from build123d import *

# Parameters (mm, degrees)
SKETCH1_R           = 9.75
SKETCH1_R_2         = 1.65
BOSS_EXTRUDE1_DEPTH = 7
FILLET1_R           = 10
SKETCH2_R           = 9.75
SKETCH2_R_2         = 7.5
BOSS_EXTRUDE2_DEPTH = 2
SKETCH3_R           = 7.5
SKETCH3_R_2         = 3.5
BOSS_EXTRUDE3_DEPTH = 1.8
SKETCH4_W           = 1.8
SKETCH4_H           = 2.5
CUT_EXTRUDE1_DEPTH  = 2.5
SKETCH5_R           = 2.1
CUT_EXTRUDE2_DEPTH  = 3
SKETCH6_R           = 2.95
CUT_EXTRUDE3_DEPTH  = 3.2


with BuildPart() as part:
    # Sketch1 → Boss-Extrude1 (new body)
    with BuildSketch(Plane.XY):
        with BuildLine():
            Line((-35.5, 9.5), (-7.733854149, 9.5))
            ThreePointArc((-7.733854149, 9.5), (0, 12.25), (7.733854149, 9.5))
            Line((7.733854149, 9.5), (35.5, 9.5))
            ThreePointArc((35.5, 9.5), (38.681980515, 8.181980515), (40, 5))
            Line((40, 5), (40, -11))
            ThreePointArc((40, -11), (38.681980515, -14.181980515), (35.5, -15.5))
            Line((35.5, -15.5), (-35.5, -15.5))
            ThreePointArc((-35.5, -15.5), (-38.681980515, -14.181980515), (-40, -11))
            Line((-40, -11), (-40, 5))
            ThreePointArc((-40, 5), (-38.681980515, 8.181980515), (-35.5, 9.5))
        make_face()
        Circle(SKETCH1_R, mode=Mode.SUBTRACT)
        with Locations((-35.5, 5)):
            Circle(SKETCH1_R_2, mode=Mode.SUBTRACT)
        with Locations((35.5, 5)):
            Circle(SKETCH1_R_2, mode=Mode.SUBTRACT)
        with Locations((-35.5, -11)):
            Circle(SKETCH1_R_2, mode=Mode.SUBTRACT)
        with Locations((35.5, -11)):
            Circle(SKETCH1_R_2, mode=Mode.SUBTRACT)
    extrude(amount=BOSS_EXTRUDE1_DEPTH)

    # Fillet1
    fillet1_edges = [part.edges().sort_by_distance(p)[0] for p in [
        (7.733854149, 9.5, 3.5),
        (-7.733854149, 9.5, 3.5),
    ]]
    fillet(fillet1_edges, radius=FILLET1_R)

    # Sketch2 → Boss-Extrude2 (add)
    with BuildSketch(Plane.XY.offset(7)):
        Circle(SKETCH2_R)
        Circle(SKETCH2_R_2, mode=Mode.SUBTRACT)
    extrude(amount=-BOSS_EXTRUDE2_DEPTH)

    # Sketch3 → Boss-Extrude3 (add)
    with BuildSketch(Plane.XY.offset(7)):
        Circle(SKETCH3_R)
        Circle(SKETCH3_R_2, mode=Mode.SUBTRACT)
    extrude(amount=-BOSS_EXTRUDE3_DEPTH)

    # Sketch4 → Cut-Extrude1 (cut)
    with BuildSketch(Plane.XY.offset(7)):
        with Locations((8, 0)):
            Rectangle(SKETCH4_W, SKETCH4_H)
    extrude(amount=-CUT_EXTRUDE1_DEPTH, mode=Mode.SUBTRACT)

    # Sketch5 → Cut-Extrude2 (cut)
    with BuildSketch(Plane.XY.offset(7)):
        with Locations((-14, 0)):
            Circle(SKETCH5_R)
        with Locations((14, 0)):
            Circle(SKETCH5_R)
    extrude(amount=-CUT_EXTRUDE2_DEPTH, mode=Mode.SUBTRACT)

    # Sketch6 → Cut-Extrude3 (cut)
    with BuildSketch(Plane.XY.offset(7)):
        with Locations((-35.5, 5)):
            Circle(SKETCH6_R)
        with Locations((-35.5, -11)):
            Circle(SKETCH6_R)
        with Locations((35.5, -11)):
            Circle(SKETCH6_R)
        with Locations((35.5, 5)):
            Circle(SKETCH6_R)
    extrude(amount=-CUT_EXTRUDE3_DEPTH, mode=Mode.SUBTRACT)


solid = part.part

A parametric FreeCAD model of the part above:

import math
import FreeCAD as App
import Part
import Sketcher
from FreeCAD import Vector


def edges_at(feature, points):
    """Names of the edges that pass closest to the given points."""
    edges = feature.Shape.Edges
    near = lambda p: min(range(len(edges)), key=lambda i: edges[i].distToShape(Part.Vertex(*p))[0])
    return sorted({f"Edge{near(p) + 1}" for p in points})

doc = App.newDocument("Part")
body = doc.addObject("PartDesign::Body", "Body")

# Sketch on XY plane
sketch1 = body.newObject("Sketcher::SketchObject", "Sketch")
sketch1.AttachmentSupport = (doc.getObject("XY_Plane"), [""])
sketch1.MapMode = "FlatFace"
sketch1.addGeometry(Part.LineSegment(Vector(-7.733854, 9.5, 0), Vector(-35.5, 9.5, 0)), False)
sketch1.addGeometry(Part.ArcOfCircle(Part.Circle(Vector(-35.5, 5, 0), Vector(0, 0, 1), 4.5), math.radians(90), math.radians(180)), False)
sketch1.addGeometry(Part.LineSegment(Vector(-40, 5, 0), Vector(-40, -11, 0)), False)
sketch1.addGeometry(Part.ArcOfCircle(Part.Circle(Vector(-35.5, -11, 0), Vector(0, 0, 1), 4.5), math.radians(-180), math.radians(-90)), False)
sketch1.addGeometry(Part.LineSegment(Vector(-35.5, -15.5, 0), Vector(35.5, -15.5, 0)), False)
sketch1.addGeometry(Part.ArcOfCircle(Part.Circle(Vector(35.5, -11, 0), Vector(0, 0, 1), 4.5), math.radians(-90), math.radians(0)), False)
sketch1.addGeometry(Part.LineSegment(Vector(40, -11, 0), Vector(40, 5, 0)), False)
sketch1.addGeometry(Part.ArcOfCircle(Part.Circle(Vector(35.5, 5, 0), Vector(0, 0, 1), 4.5), math.radians(0), math.radians(90)), False)
sketch1.addGeometry(Part.LineSegment(Vector(35.5, 9.5, 0), Vector(7.733854, 9.5, 0)), False)
sketch1.addGeometry(Part.ArcOfCircle(Part.Circle(Vector(0, 0, 0), Vector(0, 0, 1), 12.25), math.radians(50.851312), math.radians(129.148688)), False)
sketch1.addGeometry(Part.Circle(Vector(35.5, -11, 0), Vector(0, 0, 1), 1.65), False)
sketch1.addGeometry(Part.Circle(Vector(-35.5, -11, 0), Vector(0, 0, 1), 1.65), False)
sketch1.addGeometry(Part.Circle(Vector(35.5, 5, 0), Vector(0, 0, 1), 1.65), False)
sketch1.addGeometry(Part.Circle(Vector(0, 0, 0), Vector(0, 0, 1), 9.75), False)
sketch1.addGeometry(Part.Circle(Vector(-35.5, 5, 0), Vector(0, 0, 1), 1.65), False)
sketch1.addConstraint(Sketcher.Constraint("Tangent", 0, 2, 1, 1))
sketch1.addConstraint(Sketcher.Constraint("Tangent", 1, 2, 2, 1))
sketch1.addConstraint(Sketcher.Constraint("Tangent", 2, 2, 3, 1))
sketch1.addConstraint(Sketcher.Constraint("Tangent", 3, 2, 4, 1))
sketch1.addConstraint(Sketcher.Constraint("Tangent", 4, 2, 5, 1))
sketch1.addConstraint(Sketcher.Constraint("Tangent", 5, 2, 6, 1))
sketch1.addConstraint(Sketcher.Constraint("Tangent", 6, 2, 7, 1))
sketch1.addConstraint(Sketcher.Constraint("Tangent", 7, 2, 8, 1))
sketch1.addConstraint(Sketcher.Constraint("Coincident", 8, 2, 9, 1))
sketch1.addConstraint(Sketcher.Constraint("Coincident", 9, 2, 0, 1))
sketch1.addConstraint(Sketcher.Constraint("Horizontal", 0))
sketch1.addConstraint(Sketcher.Constraint("Vertical", 2))
sketch1.addConstraint(Sketcher.Constraint("Horizontal", 4))
sketch1.addConstraint(Sketcher.Constraint("Vertical", 6))
sketch1.addConstraint(Sketcher.Constraint("Horizontal", 8))
sketch1.addConstraint(Sketcher.Constraint("Coincident", 9, 3, -1, 1))
sketch1.addConstraint(Sketcher.Constraint("Coincident", 13, 3, -1, 1))
sketch1.addConstraint(Sketcher.Constraint("Coincident", 10, 3, 5, 3))
sketch1.addConstraint(Sketcher.Constraint("Coincident", 11, 3, 3, 3))
sketch1.addConstraint(Sketcher.Constraint("Coincident", 12, 3, 7, 3))
sketch1.addConstraint(Sketcher.Constraint("Coincident", 14, 3, 1, 3))
sketch1.addConstraint(Sketcher.Constraint("Equal", 1, 3))
sketch1.addConstraint(Sketcher.Constraint("Equal", 3, 5))
sketch1.addConstraint(Sketcher.Constraint("Equal", 5, 7))
sketch1.addConstraint(Sketcher.Constraint("Equal", 10, 11))
sketch1.addConstraint(Sketcher.Constraint("Equal", 11, 12))
sketch1.addConstraint(Sketcher.Constraint("Equal", 12, 14))
sketch1.addConstraint(Sketcher.Constraint("Symmetric", 1, 3, 7, 3, -2))
sketch1.addConstraint(Sketcher.Constraint("Diameter", 10, 3.3))
sketch1.addConstraint(Sketcher.Constraint("Diameter", 13, 19.5))
sketch1.addConstraint(Sketcher.Constraint("Radius", 1, 4.5))
sketch1.addConstraint(Sketcher.Constraint("DistanceX", 4, 1, 4, 2, 71.0))
sketch1.addConstraint(Sketcher.Constraint("DistanceY", 2, 2, 2, 1, 16.0))
sketch1.addConstraint(Sketcher.Constraint("Radius", 9, 12.25))
sketch1.addConstraint(Sketcher.Constraint("DistanceY", -1, 1, 1, 3, 5.0))
pad1 = body.newObject("PartDesign::Pad", "Pad")
pad1.Profile = sketch1
pad1.Length = 7
doc.recompute()

fillet = body.newObject("PartDesign::Fillet", "Fillet")
fillet.Base = (pad1, edges_at(pad1, [(7.734, 9.5, 3.5), (-7.734, 9.5, 3.5)]))
fillet.Radius = 10

# Sketch on XY plane
sketch2 = body.newObject("Sketcher::SketchObject", "Sketch001")
sketch2.AttachmentSupport = (doc.getObject("XY_Plane"), [""])
sketch2.MapMode = "FlatFace"
sketch2.AttachmentOffset = App.Placement(Vector(0, 0, 7), App.Rotation())
sketch2.addGeometry(Part.Circle(Vector(0, 0, 0), Vector(0, 0, 1), 9.75), False)
sketch2.addGeometry(Part.Circle(Vector(0, 0, 0), Vector(0, 0, 1), 7.5), False)
sketch2.addConstraint(Sketcher.Constraint("Coincident", 0, 3, -1, 1))
sketch2.addConstraint(Sketcher.Constraint("Coincident", 1, 3, -1, 1))
sketch2.addConstraint(Sketcher.Constraint("Diameter", 1, 15.0))
sketch2.addConstraint(Sketcher.Constraint("Diameter", 0, 19.5))
pad2 = body.newObject("PartDesign::Pad", "Pad001")
pad2.Profile = sketch2
pad2.Length = 2
pad2.Reversed = True

# Sketch on XY plane
sketch3 = body.newObject("Sketcher::SketchObject", "Sketch002")
sketch3.AttachmentSupport = (doc.getObject("XY_Plane"), [""])
sketch3.MapMode = "FlatFace"
sketch3.AttachmentOffset = App.Placement(Vector(0, 0, 7), App.Rotation())
sketch3.addGeometry(Part.Circle(Vector(0, 0, 0), Vector(0, 0, 1), 7.5), False)
sketch3.addGeometry(Part.Circle(Vector(0, 0, 0), Vector(0, 0, 1), 3.5), False)
sketch3.addConstraint(Sketcher.Constraint("Coincident", 0, 3, -1, 1))
sketch3.addConstraint(Sketcher.Constraint("Coincident", 1, 3, -1, 1))
sketch3.addConstraint(Sketcher.Constraint("Diameter", 0, 15.0))
sketch3.addConstraint(Sketcher.Constraint("Diameter", 1, 7.0))
pad3 = body.newObject("PartDesign::Pad", "Pad002")
pad3.Profile = sketch3
pad3.Length = 1.8
pad3.Reversed = True

# Sketch on XY plane
sketch4 = body.newObject("Sketcher::SketchObject", "Sketch003")
sketch4.AttachmentSupport = (doc.getObject("XY_Plane"), [""])
sketch4.MapMode = "FlatFace"
sketch4.AttachmentOffset = App.Placement(Vector(0, 0, 7), App.Rotation())
sketch4.addGeometry(Part.LineSegment(Vector(7.1, 1.25, 0), Vector(7.1, -1.25, 0)), False)
sketch4.addGeometry(Part.LineSegment(Vector(7.1, -1.25, 0), Vector(8.9, -1.25, 0)), False)
sketch4.addGeometry(Part.LineSegment(Vector(8.9, -1.25, 0), Vector(8.9, 1.25, 0)), False)
sketch4.addGeometry(Part.LineSegment(Vector(8.9, 1.25, 0), Vector(7.1, 1.25, 0)), False)
sketch4.addConstraint(Sketcher.Constraint("Coincident", 0, 2, 1, 1))
sketch4.addConstraint(Sketcher.Constraint("Coincident", 1, 2, 2, 1))
sketch4.addConstraint(Sketcher.Constraint("Coincident", 2, 2, 3, 1))
sketch4.addConstraint(Sketcher.Constraint("Coincident", 3, 2, 0, 1))
sketch4.addConstraint(Sketcher.Constraint("Vertical", 0))
sketch4.addConstraint(Sketcher.Constraint("Horizontal", 1))
sketch4.addConstraint(Sketcher.Constraint("Vertical", 2))
sketch4.addConstraint(Sketcher.Constraint("Horizontal", 3))
sketch4.addConstraint(Sketcher.Constraint("DistanceX", 1, 1, 1, 2, 1.8))
sketch4.addConstraint(Sketcher.Constraint("DistanceY", 0, 2, 0, 1, 2.5))
sketch4.addConstraint(Sketcher.Constraint("DistanceX", -1, 1, 0, 2, 7.1))
sketch4.addConstraint(Sketcher.Constraint("DistanceY", 0, 2, -1, 1, 1.25))
pocket1 = body.newObject("PartDesign::Pocket", "Pocket")
pocket1.Profile = sketch4
pocket1.Length = 2.5

# Sketch on XY plane
sketch5 = body.newObject("Sketcher::SketchObject", "Sketch004")
sketch5.AttachmentSupport = (doc.getObject("XY_Plane"), [""])
sketch5.MapMode = "FlatFace"
sketch5.AttachmentOffset = App.Placement(Vector(0, 0, 7), App.Rotation())
sketch5.addGeometry(Part.Circle(Vector(-14, 0, 0), Vector(0, 0, 1), 2.1), False)
sketch5.addGeometry(Part.Circle(Vector(14, 0, 0), Vector(0, 0, 1), 2.1), False)
sketch5.addConstraint(Sketcher.Constraint("Equal", 0, 1))
sketch5.addConstraint(Sketcher.Constraint("Symmetric", 0, 3, 1, 3, -1, 1))
sketch5.addConstraint(Sketcher.Constraint("PointOnObject", 0, 3, -1))
sketch5.addConstraint(Sketcher.Constraint("Diameter", 0, 4.2))
sketch5.addConstraint(Sketcher.Constraint("DistanceX", 0, 3, -1, 1, 14.0))
pocket2 = body.newObject("PartDesign::Pocket", "Pocket001")
pocket2.Profile = sketch5
pocket2.Length = 3

# Sketch on XY plane
sketch6 = body.newObject("Sketcher::SketchObject", "Sketch005")
sketch6.AttachmentSupport = (doc.getObject("XY_Plane"), [""])
sketch6.MapMode = "FlatFace"
sketch6.AttachmentOffset = App.Placement(Vector(0, 0, 7), App.Rotation())
sketch6.addGeometry(Part.Circle(Vector(-35.5, 5, 0), Vector(0, 0, 1), 2.95), False)
sketch6.addGeometry(Part.Circle(Vector(-35.5, -11, 0), Vector(0, 0, 1), 2.95), False)
sketch6.addGeometry(Part.Circle(Vector(35.5, -11, 0), Vector(0, 0, 1), 2.95), False)
sketch6.addGeometry(Part.Circle(Vector(35.5, 5, 0), Vector(0, 0, 1), 2.95), False)
sketch6.addConstraint(Sketcher.Constraint("Equal", 0, 1))
sketch6.addConstraint(Sketcher.Constraint("Equal", 1, 2))
sketch6.addConstraint(Sketcher.Constraint("Equal", 2, 3))
sketch6.addConstraint(Sketcher.Constraint("Symmetric", 1, 3, 2, 3, -2))
sketch6.addConstraint(Sketcher.Constraint("Symmetric", 0, 3, 3, 3, -2))
sketch6.addConstraint(Sketcher.Constraint("Vertical", 0, 3, 1, 3))
sketch6.addConstraint(Sketcher.Constraint("Diameter", 0, 5.9))
sketch6.addConstraint(Sketcher.Constraint("DistanceY", -1, 1, 0, 3, 5.0))
sketch6.addConstraint(Sketcher.Constraint("DistanceY", 1, 3, -1, 1, 11.0))
sketch6.addConstraint(Sketcher.Constraint("DistanceX", 1, 3, 2, 3, 71.0))
pocket3 = body.newObject("PartDesign::Pocket", "Pocket002")
pocket3.Profile = sketch6
pocket3.Length = 3.2

doc.recompute()
